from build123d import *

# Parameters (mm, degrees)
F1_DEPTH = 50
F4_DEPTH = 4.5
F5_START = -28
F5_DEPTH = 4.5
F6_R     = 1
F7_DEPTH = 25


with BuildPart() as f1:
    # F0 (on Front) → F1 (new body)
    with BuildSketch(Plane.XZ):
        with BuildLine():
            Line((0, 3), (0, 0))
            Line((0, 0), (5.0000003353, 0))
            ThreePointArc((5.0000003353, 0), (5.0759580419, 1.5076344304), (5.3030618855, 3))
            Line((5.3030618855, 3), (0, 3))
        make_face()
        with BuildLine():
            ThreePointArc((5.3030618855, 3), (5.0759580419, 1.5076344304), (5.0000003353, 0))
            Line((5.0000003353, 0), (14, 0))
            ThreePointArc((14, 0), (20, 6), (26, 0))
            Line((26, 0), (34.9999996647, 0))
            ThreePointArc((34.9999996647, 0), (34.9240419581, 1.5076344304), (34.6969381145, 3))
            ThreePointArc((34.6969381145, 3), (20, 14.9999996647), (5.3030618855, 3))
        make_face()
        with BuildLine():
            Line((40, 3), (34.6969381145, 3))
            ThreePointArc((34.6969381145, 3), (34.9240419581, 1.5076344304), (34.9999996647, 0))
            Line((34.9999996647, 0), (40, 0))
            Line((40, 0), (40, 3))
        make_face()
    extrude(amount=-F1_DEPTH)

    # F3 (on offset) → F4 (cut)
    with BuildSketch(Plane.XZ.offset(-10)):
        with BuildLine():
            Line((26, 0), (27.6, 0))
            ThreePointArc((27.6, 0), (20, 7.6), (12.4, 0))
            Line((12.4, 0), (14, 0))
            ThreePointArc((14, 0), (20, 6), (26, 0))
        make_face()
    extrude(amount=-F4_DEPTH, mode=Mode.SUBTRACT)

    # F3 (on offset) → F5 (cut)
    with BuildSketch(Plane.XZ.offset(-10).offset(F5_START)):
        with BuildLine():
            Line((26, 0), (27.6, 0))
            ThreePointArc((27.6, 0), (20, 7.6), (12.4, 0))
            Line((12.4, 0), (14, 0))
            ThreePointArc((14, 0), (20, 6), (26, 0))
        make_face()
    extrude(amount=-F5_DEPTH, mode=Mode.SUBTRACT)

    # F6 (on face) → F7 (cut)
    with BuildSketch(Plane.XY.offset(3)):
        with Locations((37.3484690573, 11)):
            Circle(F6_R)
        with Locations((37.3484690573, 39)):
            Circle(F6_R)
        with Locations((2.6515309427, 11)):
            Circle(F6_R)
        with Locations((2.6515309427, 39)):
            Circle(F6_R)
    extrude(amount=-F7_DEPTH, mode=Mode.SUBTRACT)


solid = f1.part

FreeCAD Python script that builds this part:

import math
import FreeCAD as App
import Part
import Sketcher
Q = App.Units.Quantity

doc = App.newDocument("Part")
body = doc.addObject("PartDesign::Body", "Body")

sketch1 = body.newObject("Sketcher::SketchObject", "Sketch")
sketch1.AttachmentSupport = (doc.getObject("XZ_Plane"), [""])
sketch1.MapMode = "FlatFace"
sketch1.addGeometry([
    Part.LineSegment(App.Vector(0, 3, 0), App.Vector(0, 0, 0)),
    Part.LineSegment(App.Vector(0, 0, 0), App.Vector(14, 0, 0)),
    Part.ArcOfCircle(Part.Circle(App.Vector(20, 0, 0), App.Vector(0, 0, 1), 6), math.radians(0), math.radians(180)),
    Part.LineSegment(App.Vector(26, 0, 0), App.Vector(40, 0, 0)),
    Part.LineSegment(App.Vector(40, 0, 0), App.Vector(40, 3, 0)),
    Part.LineSegment(App.Vector(40, 3, 0), App.Vector(34.7, 3, 0)),
    Part.ArcOfCircle(Part.Circle(App.Vector(20, 0, 0), App.Vector(0, 0, 1), 15), math.radians(12), math.radians(168)),
    Part.LineSegment(App.Vector(5.3, 3, 0), App.Vector(0, 3, 0)),
], False)
sketch1.addConstraint([
    Sketcher.Constraint("Coincident", 0, 2, 1, 1),
    Sketcher.Constraint("Coincident", 1, 2, 2, 2),
    Sketcher.Constraint("Coincident", 2, 1, 3, 1),
    Sketcher.Constraint("Coincident", 3, 2, 4, 1),
    Sketcher.Constraint("Coincident", 4, 2, 5, 1),
    Sketcher.Constraint("Coincident", 5, 2, 6, 1),
    Sketcher.Constraint("Coincident", 6, 2, 7, 1),
    Sketcher.Constraint("Coincident", 7, 2, 0, 1),
    Sketcher.Constraint("Vertical", 0),
    Sketcher.Constraint("Horizontal", 1),
    Sketcher.Constraint("Horizontal", 3),
    Sketcher.Constraint("Vertical", 4),
    Sketcher.Constraint("Horizontal", 5),
    Sketcher.Constraint("Horizontal", 7),
    Sketcher.Constraint("Coincident", 0, 2, -1, 1),
    Sketcher.Constraint("Coincident", 6, 3, 2, 3),
    Sketcher.Constraint("PointOnObject", 2, 3, -1),
    Sketcher.Constraint("PointOnObject", 2, 1, -1),
    Sketcher.Constraint("Horizontal", 5, 2, 6, 2),
    Sketcher.Constraint("Equal", 1, 3),
    Sketcher.Constraint("Radius", 2, Q("6 mm")),
    Sketcher.Constraint("Radius", 6, Q("15 mm")),
    Sketcher.Constraint("DistanceX", 1, 1, 1, 2, Q("14 mm")),
    Sketcher.Constraint("DistanceY", 0, 2, 0, 1, Q("3 mm")),
])
pad1 = body.newObject("PartDesign::Pad", "Pad")
pad1.Profile = sketch1
pad1.Length = 50
pad1.Reversed = True

sketch2 = body.newObject("Sketcher::SketchObject", "Sketch001")
sketch2.AttachmentSupport = (doc.getObject("XZ_Plane"), [""])
sketch2.MapMode = "FlatFace"
sketch2.AttachmentOffset = App.Placement(App.Vector(0, 0, -10), App.Rotation())
sketch2.addGeometry([
    Part.LineSegment(App.Vector(26, 0, 0), App.Vector(27.6, 0, 0)),
    Part.ArcOfCircle(Part.Circle(App.Vector(20, 0, 0), App.Vector(0, 0, 1), 7.6), math.radians(0), math.radians(180)),
    Part.LineSegment(App.Vector(12.4, 0, 0), App.Vector(14, 0, 0)),
    Part.ArcOfCircle(Part.Circle(App.Vector(20, 0, 0), App.Vector(0, 0, 1), 6), math.radians(0), math.radians(180)),
], False)
sketch2.addConstraint([
    Sketcher.Constraint("Coincident", 0, 2, 1, 1),
    Sketcher.Constraint("Coincident", 1, 2, 2, 1),
    Sketcher.Constraint("Coincident", 2, 2, 3, 2),
    Sketcher.Constraint("Coincident", 3, 1, 0, 1),
    Sketcher.Constraint("Horizontal", 0),
    Sketcher.Constraint("Horizontal", 2),
    Sketcher.Constraint("Coincident", 3, 3, 1, 3),
    Sketcher.Constraint("PointOnObject", 1, 3, -1),
    Sketcher.Constraint("PointOnObject", 0, 2, -1),
    Sketcher.Constraint("PointOnObject", 1, 2, -1),
    Sketcher.Constraint("Radius", 3, Q("6 mm")),
    Sketcher.Constraint("Radius", 1, Q("7.6 mm")),
    Sketcher.Constraint("DistanceX", -1, 1, 1, 3, Q("20 mm")),
])
pocket1 = body.newObject("PartDesign::Pocket", "Pocket")
pocket1.Profile = sketch2
pocket1.Length = 4.5

sketch3 = body.newObject("Sketcher::SketchObject", "Sketch002")
sketch3.AttachmentSupport = (doc.getObject("XZ_Plane"), [""])
sketch3.MapMode = "FlatFace"
sketch3.AttachmentOffset = App.Placement(App.Vector(0, 0, -38), App.Rotation())
sketch3.addGeometry([
    Part.LineSegment(App.Vector(26, 0, 0), App.Vector(27.6, 0, 0)),
    Part.ArcOfCircle(Part.Circle(App.Vector(20, 0, 0), App.Vector(0, 0, 1), 7.6), math.radians(0), math.radians(180)),
    Part.LineSegment(App.Vector(12.4, 0, 0), App.Vector(14, 0, 0)),
    Part.ArcOfCircle(Part.Circle(App.Vector(20, 0, 0), App.Vector(0, 0, 1), 6), math.radians(0), math.radians(180)),
], False)
sketch3.addConstraint([
    Sketcher.Constraint("Coincident", 0, 2, 1, 1),
    Sketcher.Constraint("Coincident", 1, 2, 2, 1),
    Sketcher.Constraint("Coincident", 2, 2, 3, 2),
    Sketcher.Constraint("Coincident", 3, 1, 0, 1),
    Sketcher.Constraint("Horizontal", 0),
    Sketcher.Constraint("Horizontal", 2),
    Sketcher.Constraint("Coincident", 3, 3, 1, 3),
    Sketcher.Constraint("PointOnObject", 1, 3, -1),
    Sketcher.Constraint("PointOnObject", 0, 2, -1),
    Sketcher.Constraint("PointOnObject", 1, 2, -1),
    Sketcher.Constraint("Radius", 3, Q("6 mm")),
    Sketcher.Constraint("Radius", 1, Q("7.6 mm")),
    Sketcher.Constraint("DistanceX", -1, 1, 1, 3, Q("20 mm")),
])
pocket2 = body.newObject("PartDesign::Pocket", "Pocket001")
pocket2.Profile = sketch3
pocket2.Length = 4.5

sketch4 = body.newObject("Sketcher::SketchObject", "Sketch003")
sketch4.AttachmentSupport = (doc.getObject("XY_Plane"), [""])
sketch4.MapMode = "FlatFace"
sketch4.AttachmentOffset = App.Placement(App.Vector(0, 0, 3), App.Rotation())
sketch4.addGeometry([
    Part.Circle(App.Vector(37.3, 11, 0), App.Vector(0, 0, 1), 1),
    Part.Circle(App.Vector(37.3, 39, 0), App.Vector(0, 0, 1), 1),
    Part.Circle(App.Vector(2.7, 11, 0), App.Vector(0, 0, 1), 1),
    Part.Circle(App.Vector(2.7, 39, 0), App.Vector(0, 0, 1), 1),
], False)
sketch4.addConstraint([
    Sketcher.Constraint("Equal", 0, 1),
    Sketcher.Constraint("Equal", 1, 2),
    Sketcher.Constraint("Equal", 2, 3),
    Sketcher.Constraint("Horizontal", 0, 3, 2, 3),
    Sketcher.Constraint("Horizontal", 1, 3, 3, 3),
    Sketcher.Constraint("Vertical", 0, 3, 1, 3),
    Sketcher.Constraint("Vertical", 2, 3, 3, 3),
    Sketcher.Constraint("Diameter", 0, Q("2 mm")),
    Sketcher.Constraint("DistanceY", -1, 1, 0, 3, Q("11 mm")),
    Sketcher.Constraint("DistanceY", -1, 1, 1, 3, Q("39 mm")),
    Sketcher.Constraint("DistanceX", -1, 1, 0, 3, Q("37.348469 mm")),
    Sketcher.Constraint("DistanceX", -1, 1, 2, 3, Q("2.651531 mm")),
])
pocket3 = body.newObject("PartDesign::Pocket", "Pocket002")
pocket3.Profile = sketch4
pocket3.Length = 25

doc.recompute()
